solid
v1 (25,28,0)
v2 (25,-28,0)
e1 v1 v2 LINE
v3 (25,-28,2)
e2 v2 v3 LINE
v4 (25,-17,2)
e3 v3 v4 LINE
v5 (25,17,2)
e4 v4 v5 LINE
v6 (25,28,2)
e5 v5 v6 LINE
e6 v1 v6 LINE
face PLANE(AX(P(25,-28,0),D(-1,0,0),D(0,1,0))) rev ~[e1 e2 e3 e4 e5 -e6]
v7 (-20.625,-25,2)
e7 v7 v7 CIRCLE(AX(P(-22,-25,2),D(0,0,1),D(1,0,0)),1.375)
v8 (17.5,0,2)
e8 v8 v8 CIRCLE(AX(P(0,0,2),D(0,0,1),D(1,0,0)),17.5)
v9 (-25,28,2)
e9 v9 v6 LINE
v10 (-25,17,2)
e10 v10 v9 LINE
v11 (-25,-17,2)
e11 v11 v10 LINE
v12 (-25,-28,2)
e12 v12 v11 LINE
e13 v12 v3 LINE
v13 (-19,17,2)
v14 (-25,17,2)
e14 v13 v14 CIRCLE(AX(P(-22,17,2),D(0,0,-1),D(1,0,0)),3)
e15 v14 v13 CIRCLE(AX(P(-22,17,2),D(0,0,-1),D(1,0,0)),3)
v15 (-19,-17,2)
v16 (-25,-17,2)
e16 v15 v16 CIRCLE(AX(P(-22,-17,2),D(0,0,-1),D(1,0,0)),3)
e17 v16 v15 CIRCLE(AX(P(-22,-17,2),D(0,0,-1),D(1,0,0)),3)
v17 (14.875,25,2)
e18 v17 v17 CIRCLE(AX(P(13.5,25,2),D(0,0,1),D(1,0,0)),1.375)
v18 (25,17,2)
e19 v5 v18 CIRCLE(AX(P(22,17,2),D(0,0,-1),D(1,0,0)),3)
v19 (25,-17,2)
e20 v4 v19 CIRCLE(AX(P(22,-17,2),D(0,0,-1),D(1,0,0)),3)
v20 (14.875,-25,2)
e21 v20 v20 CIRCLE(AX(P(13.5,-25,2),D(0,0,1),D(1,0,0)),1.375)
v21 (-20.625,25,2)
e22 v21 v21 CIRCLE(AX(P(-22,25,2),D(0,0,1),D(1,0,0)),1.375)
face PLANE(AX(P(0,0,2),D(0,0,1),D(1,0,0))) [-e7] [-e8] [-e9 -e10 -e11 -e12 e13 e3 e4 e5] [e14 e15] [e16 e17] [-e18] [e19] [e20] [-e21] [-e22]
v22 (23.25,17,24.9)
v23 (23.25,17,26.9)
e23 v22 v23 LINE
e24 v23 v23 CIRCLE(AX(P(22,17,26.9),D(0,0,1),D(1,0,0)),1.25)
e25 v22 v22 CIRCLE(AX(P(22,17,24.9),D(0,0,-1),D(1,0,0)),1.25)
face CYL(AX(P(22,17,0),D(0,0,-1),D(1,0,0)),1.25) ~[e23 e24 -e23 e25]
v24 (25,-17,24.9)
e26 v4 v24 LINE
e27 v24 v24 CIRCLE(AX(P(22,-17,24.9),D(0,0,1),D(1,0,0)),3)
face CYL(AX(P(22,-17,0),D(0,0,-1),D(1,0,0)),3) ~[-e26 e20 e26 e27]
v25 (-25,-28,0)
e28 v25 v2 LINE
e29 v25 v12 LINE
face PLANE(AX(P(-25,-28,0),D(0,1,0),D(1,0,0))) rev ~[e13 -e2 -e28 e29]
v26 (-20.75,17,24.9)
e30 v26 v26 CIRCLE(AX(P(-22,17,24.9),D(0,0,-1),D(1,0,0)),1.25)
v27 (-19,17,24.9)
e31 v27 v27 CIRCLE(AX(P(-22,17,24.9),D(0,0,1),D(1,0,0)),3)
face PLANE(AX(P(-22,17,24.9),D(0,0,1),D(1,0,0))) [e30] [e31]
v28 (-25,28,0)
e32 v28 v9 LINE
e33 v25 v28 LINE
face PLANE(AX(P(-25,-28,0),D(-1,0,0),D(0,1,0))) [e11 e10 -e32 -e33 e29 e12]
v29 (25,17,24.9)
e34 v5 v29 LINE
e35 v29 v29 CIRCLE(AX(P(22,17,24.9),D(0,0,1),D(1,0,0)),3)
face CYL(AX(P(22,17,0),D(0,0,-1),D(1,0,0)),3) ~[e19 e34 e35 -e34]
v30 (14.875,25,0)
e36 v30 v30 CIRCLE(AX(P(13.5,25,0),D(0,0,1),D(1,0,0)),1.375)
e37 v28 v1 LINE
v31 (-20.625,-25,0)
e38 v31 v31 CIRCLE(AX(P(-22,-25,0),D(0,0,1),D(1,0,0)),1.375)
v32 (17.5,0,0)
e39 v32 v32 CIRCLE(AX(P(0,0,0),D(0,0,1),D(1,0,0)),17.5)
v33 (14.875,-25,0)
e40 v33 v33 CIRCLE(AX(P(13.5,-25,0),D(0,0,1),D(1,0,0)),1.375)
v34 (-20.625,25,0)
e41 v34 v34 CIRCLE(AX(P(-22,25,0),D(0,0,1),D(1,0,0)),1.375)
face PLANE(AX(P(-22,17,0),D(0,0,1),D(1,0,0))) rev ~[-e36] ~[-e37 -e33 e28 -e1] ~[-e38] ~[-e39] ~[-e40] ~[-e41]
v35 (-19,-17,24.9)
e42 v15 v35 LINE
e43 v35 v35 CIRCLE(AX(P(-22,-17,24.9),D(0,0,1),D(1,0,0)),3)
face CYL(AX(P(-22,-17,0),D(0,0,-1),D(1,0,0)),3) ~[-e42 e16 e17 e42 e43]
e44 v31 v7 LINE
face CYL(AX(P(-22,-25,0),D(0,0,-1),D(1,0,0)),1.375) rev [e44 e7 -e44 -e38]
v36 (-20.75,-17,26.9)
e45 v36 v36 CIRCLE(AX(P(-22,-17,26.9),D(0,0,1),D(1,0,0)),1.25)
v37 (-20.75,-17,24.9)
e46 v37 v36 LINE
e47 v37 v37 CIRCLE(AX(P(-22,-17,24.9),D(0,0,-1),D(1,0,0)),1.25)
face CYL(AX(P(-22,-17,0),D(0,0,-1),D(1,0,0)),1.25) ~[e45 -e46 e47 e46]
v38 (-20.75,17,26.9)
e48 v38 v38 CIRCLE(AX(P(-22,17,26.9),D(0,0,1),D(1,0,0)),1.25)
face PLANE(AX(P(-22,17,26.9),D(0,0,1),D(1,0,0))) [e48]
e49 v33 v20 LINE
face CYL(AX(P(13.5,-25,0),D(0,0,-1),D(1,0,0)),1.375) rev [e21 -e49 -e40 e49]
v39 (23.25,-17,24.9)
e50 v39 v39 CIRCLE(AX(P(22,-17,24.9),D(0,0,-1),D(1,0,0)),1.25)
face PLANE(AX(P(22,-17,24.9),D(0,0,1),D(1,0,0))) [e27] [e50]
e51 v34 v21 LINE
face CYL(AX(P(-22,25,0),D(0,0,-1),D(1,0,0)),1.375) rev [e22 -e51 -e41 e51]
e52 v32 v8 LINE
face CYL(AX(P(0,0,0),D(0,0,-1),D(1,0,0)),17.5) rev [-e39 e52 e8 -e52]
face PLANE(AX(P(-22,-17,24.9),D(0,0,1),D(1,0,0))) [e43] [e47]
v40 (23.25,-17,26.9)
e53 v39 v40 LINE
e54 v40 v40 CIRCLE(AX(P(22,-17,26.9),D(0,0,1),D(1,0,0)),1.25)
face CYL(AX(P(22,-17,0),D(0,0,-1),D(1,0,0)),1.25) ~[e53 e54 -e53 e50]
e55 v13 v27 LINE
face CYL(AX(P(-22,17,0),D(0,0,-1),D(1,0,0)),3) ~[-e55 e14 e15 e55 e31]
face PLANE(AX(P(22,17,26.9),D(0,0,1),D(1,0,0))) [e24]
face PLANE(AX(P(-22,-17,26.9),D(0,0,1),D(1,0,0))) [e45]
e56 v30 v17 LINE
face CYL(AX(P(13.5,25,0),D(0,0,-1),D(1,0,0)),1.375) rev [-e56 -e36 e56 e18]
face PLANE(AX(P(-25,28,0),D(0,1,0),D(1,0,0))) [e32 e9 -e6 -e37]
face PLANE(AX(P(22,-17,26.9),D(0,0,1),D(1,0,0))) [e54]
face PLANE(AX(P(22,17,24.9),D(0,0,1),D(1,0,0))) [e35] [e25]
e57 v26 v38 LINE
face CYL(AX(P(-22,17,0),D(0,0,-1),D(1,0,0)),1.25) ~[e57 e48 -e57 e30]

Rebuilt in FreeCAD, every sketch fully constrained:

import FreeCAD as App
import Part
import Sketcher
Q = App.Units.Quantity

doc = App.newDocument("Part")
body = doc.addObject("PartDesign::Body", "Body")

# Sketch on XY plane
sketch1 = body.newObject("Sketcher::SketchObject", "Sketch")
sketch1.AttachmentSupport = (doc.getObject("XY_Plane"), [""])
sketch1.MapMode = "FlatFace"
sketch1.addGeometry(Part.LineSegment(App.Vector(-25, 28, 0), App.Vector(-25, -28, 0)), False)
sketch1.addGeometry(Part.LineSegment(App.Vector(-25, -28, 0), App.Vector(25, -28, 0)), False)
sketch1.addGeometry(Part.LineSegment(App.Vector(25, -28, 0), App.Vector(25, 28, 0)), False)
sketch1.addGeometry(Part.LineSegment(App.Vector(25, 28, 0), App.Vector(-25, 28, 0)), False)
sketch1.addGeometry(Part.Circle(App.Vector(-22, -25, 0), App.Vector(0, 0, 1), 1.4), False)
sketch1.addGeometry(Part.Circle(App.Vector(13.5, -25, 0), App.Vector(0, 0, 1), 1.4), False)
sketch1.addGeometry(Part.Circle(App.Vector(-22, 25, 0), App.Vector(0, 0, 1), 1.4), False)
sketch1.addGeometry(Part.Circle(App.Vector(0, 0, 0), App.Vector(0, 0, 1), 17.5), False)
sketch1.addGeometry(Part.Circle(App.Vector(13.5, 25, 0), App.Vector(0, 0, 1), 1.4), False)
sketch1.addConstraint(Sketcher.Constraint("Coincident", 0, 2, 1, 1))
sketch1.addConstraint(Sketcher.Constraint("Coincident", 1, 2, 2, 1))
sketch1.addConstraint(Sketcher.Constraint("Coincident", 2, 2, 3, 1))
sketch1.addConstraint(Sketcher.Constraint("Coincident", 3, 2, 0, 1))
sketch1.addConstraint(Sketcher.Constraint("Vertical", 0))
sketch1.addConstraint(Sketcher.Constraint("Horizontal", 1))
sketch1.addConstraint(Sketcher.Constraint("Vertical", 2))
sketch1.addConstraint(Sketcher.Constraint("Horizontal", 3))
sketch1.addConstraint(Sketcher.Constraint("Coincident", 7, 3, -1, 1))
sketch1.addConstraint(Sketcher.Constraint("Equal", 4, 5))
sketch1.addConstraint(Sketcher.Constraint("Equal", 5, 6))
sketch1.addConstraint(Sketcher.Constraint("Equal", 6, 8))
sketch1.addConstraint(Sketcher.Constraint("Symmetric", 0, 2, 2, 2, -1, 1))
sketch1.addConstraint(Sketcher.Constraint("Symmetric", 4, 3, 6, 3, -1))
sketch1.addConstraint(Sketcher.Constraint("Symmetric", 5, 3, 8, 3, -1))
sketch1.addConstraint(Sketcher.Constraint("Horizontal", 4, 3, 5, 3))
sketch1.addConstraint(Sketcher.Constraint("Diameter", 7, Q("35 mm")))
sketch1.addConstraint(Sketcher.Constraint("Diameter", 4, Q("2.75 mm")))
sketch1.addConstraint(Sketcher.Constraint("DistanceX", 1, 1, 1, 2, Q("50 mm")))
sketch1.addConstraint(Sketcher.Constraint("DistanceY", 0, 2, 0, 1, Q("56 mm")))
sketch1.addConstraint(Sketcher.Constraint("DistanceX", 4, 3, -1, 1, Q("22 mm")))
sketch1.addConstraint(Sketcher.Constraint("DistanceY", 4, 3, -1, 1, Q("25 mm")))
sketch1.addConstraint(Sketcher.Constraint("DistanceX", -1, 1, 5, 3, Q("13.5 mm")))
pad1 = body.newObject("PartDesign::Pad", "Pad")
pad1.Profile = sketch1
pad1.Length = 2

# Sketch on XY plane
sketch2 = body.newObject("Sketcher::SketchObject", "Sketch001")
sketch2.AttachmentSupport = (doc.getObject("XY_Plane"), [""])
sketch2.MapMode = "FlatFace"
sketch2.addGeometry(Part.Circle(App.Vector(-22, 17, 0), App.Vector(0, 0, 1), 3), False)
sketch2.addGeometry(Part.Circle(App.Vector(22, 17, 0), App.Vector(0, 0, 1), 3), False)
sketch2.addGeometry(Part.Circle(App.Vector(22, -17, 0), App.Vector(0, 0, 1), 3), False)
sketch2.addGeometry(Part.Circle(App.Vector(-22, -17, 0), App.Vector(0, 0, 1), 3), False)
sketch2.addConstraint(Sketcher.Constraint("Equal", 0, 1))
sketch2.addConstraint(Sketcher.Constraint("Equal", 1, 2))
sketch2.addConstraint(Sketcher.Constraint("Equal", 2, 3))
sketch2.addConstraint(Sketcher.Constraint("Symmetric", 0, 3, 2, 3, -1, 1))
sketch2.addConstraint(Sketcher.Constraint("Symmetric", 1, 3, 3, 3, -1, 1))
sketch2.addConstraint(Sketcher.Constraint("Symmetric", 0, 3, 1, 3, -2))
sketch2.addConstraint(Sketcher.Constraint("Diameter", 0, Q("6 mm")))
sketch2.addConstraint(Sketcher.Constraint("DistanceX", 0, 3, -1, 1, Q("22 mm")))
sketch2.addConstraint(Sketcher.Constraint("DistanceY", -1, 1, 0, 3, Q("17 mm")))
pad2 = body.newObject("PartDesign::Pad", "Pad001")
pad2.Profile = sketch2
pad2.Length = 24.9

# Sketch on XY plane
sketch3 = body.newObject("Sketcher::SketchObject", "Sketch002")
sketch3.AttachmentSupport = (doc.getObject("XY_Plane"), [""])
sketch3.MapMode = "FlatFace"
sketch3.addGeometry(Part.Circle(App.Vector(-22, 17, 0), App.Vector(0, 0, 1), 1.2), False)
sketch3.addGeometry(Part.Circle(App.Vector(22, 17, 0), App.Vector(0, 0, 1), 1.2), False)
sketch3.addGeometry(Part.Circle(App.Vector(22, -17, 0), App.Vector(0, 0, 1), 1.2), False)
sketch3.addGeometry(Part.Circle(App.Vector(-22, -17, 0), App.Vector(0, 0, 1), 1.2), False)
sketch3.addConstraint(Sketcher.Constraint("Equal", 0, 1))
sketch3.addConstraint(Sketcher.Constraint("Equal", 1, 2))
sketch3.addConstraint(Sketcher.Constraint("Equal", 2, 3))
sketch3.addConstraint(Sketcher.Constraint("Symmetric", 0, 3, 2, 3, -1, 1))
sketch3.addConstraint(Sketcher.Constraint("Symmetric", 1, 3, 3, 3, -1, 1))
sketch3.addConstraint(Sketcher.Constraint("Symmetric", 0, 3, 1, 3, -2))
sketch3.addConstraint(Sketcher.Constraint("Diameter", 0, Q("2.5 mm")))
sketch3.addConstraint(Sketcher.Constraint("DistanceX", 0, 3, -1, 1, Q("22 mm")))
sketch3.addConstraint(Sketcher.Constraint("DistanceY", -1, 1, 0, 3, Q("17 mm")))
pad3 = body.newObject("PartDesign::Pad", "Pad002")
pad3.Profile = sketch3
pad3.Length = 26.9

doc.recompute()
